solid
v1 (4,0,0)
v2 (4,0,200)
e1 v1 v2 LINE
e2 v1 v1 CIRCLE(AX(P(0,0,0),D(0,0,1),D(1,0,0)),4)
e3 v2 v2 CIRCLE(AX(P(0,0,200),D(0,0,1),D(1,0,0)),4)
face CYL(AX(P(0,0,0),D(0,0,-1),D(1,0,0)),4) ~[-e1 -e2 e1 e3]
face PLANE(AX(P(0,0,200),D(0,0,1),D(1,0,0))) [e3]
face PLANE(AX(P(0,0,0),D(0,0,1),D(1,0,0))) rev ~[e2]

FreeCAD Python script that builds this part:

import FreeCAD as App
import Part
import Sketcher

V = App.Vector
Q = App.Units.Quantity

doc = App.newDocument("Part")
body = doc.addObject("PartDesign::Body", "Body")

sketch1 = body.newObject("Sketcher::SketchObject", "Sketch")
sketch1.AttachmentSupport = (doc.getObject("XY_Plane"), [""])
sketch1.MapMode = "FlatFace"
sketch1.addGeometry(Part.Circle(V(0, 0, 0), V(0, 0, 1), 4), False)
sketch1.addConstraint(Sketcher.Constraint("Coincident", 0, 3, -1, 1))
sketch1.addConstraint(Sketcher.Constraint("Diameter", 0, Q("8 mm")))
pad1 = body.newObject("PartDesign::Pad", "Pad")
pad1.Profile = sketch1
pad1.Length = 200

doc.recompute()
